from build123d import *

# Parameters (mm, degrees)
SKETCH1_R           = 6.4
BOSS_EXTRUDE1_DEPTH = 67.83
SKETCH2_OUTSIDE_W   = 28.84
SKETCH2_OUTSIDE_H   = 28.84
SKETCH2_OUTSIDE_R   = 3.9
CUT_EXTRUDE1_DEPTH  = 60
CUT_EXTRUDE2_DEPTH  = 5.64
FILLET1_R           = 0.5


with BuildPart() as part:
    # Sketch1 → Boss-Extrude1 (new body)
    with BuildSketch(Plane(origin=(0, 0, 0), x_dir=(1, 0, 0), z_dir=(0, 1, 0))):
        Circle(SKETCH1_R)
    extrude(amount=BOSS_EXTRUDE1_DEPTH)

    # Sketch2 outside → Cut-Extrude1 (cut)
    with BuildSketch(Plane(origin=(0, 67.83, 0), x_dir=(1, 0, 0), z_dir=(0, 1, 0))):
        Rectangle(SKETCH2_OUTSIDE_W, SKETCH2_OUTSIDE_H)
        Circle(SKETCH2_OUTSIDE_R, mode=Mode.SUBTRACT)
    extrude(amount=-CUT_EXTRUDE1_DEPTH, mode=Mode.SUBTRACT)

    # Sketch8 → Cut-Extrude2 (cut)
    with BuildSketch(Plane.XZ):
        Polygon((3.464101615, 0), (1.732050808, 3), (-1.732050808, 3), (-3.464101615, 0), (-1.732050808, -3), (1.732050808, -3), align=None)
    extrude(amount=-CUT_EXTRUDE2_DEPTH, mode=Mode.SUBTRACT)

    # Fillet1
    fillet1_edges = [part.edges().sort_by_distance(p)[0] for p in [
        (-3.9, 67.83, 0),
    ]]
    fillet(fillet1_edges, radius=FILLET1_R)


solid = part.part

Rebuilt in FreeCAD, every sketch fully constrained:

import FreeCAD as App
import Part
import Sketcher

V = App.Vector
Q = App.Units.Quantity


def edges_at(feature, points):
    """Names of the edges that pass closest to the given points."""
    edges = feature.Shape.Edges
    near = lambda p: min(range(len(edges)), key=lambda i: edges[i].distToShape(Part.Vertex(*p))[0])
    return sorted({f"Edge{near(p) + 1}" for p in points})

doc = App.newDocument("Part")
params = doc.addObject("Spreadsheet::Sheet", "Params")
for row, (alias, value) in enumerate([
    ("sketch1_diameter", "12.8 mm"),
    ("pad1_length", "67.83 mm"),
    ("sketch2_diameter", "7.8 mm"),
    ("sketch2_width", "28.84 mm"),
    ("pocket1_length", "60 mm"),
    ("pocket2_length", "5.64 mm"),
    ("fillet_radius", "0.5 mm"),
], start=1):
    params.set(f"A{row}", alias)
    params.set(f"B{row}", "=" + value)
    params.setAlias(f"B{row}", alias)

body = doc.addObject("PartDesign::Body", "Body")

# Sketch on XZ plane
sketch1 = body.newObject("Sketcher::SketchObject", "Sketch")
sketch1.AttachmentSupport = (doc.getObject("XZ_Plane"), [""])
sketch1.MapMode = "FlatFace"
sketch1.addGeometry(Part.Circle(V(0, 0, 0), V(0, 0, 1), 6.4), False)
sketch1.addConstraint([
    Sketcher.Constraint("Coincident", 0, 3, -1, 1),
    Sketcher.Constraint("Diameter", 0, 12.8),
])
sketch1.setExpression("Constraints[1]", "Params.sketch1_diameter")
pad1 = body.newObject("PartDesign::Pad", "Pad")
pad1.Profile = sketch1
pad1.setExpression("Length", "Params.pad1_length")
pad1.Reversed = True

# Sketch on XZ plane
sketch2 = body.newObject("Sketcher::SketchObject", "Sketch001")
sketch2.AttachmentSupport = (doc.getObject("XZ_Plane"), [""])
sketch2.MapMode = "FlatFace"
sketch2.AttachmentOffset = App.Placement(V(0, 0, -67.83), App.Rotation())
sketch2.addGeometry([
    Part.LineSegment(V(-14.42, -14.42, 0), V(-14.42, 14.42, 0)),  # 0
    Part.LineSegment(V(-14.42, 14.42, 0), V(14.42, 14.42, 0)),  # 1
    Part.LineSegment(V(14.42, 14.42, 0), V(14.42, -14.42, 0)),  # 2
    Part.LineSegment(V(14.42, -14.42, 0), V(-14.42, -14.42, 0)),  # 3
    Part.Circle(V(0, 0, 0), V(0, 0, 1), 3.9),  # 4
], False)
sketch2.addConstraint([
    Sketcher.Constraint("Coincident", 0, 2, 1, 1),
    Sketcher.Constraint("Coincident", 1, 2, 2, 1),
    Sketcher.Constraint("Coincident", 2, 2, 3, 1),
    Sketcher.Constraint("Coincident", 3, 2, 0, 1),
    Sketcher.Constraint("Vertical", 0),
    Sketcher.Constraint("Horizontal", 1),
    Sketcher.Constraint("Vertical", 2),
    Sketcher.Constraint("Horizontal", 3),
    Sketcher.Constraint("Coincident", 4, 3, -1, 1),
    Sketcher.Constraint("Symmetric", 0, 2, 2, 2, -1, 1),
    Sketcher.Constraint("Equal", 3, 0),
    Sketcher.Constraint("Diameter", 4, 7.8),
    Sketcher.Constraint("DistanceX", 1, 1, 1, 2, 28.84),
])
sketch2.setExpression("Constraints[11]", "Params.sketch2_diameter")
sketch2.setExpression("Constraints[12]", "Params.sketch2_width")
pocket1 = body.newObject("PartDesign::Pocket", "Pocket")
pocket1.Profile = sketch2
pocket1.setExpression("Length", "Params.pocket1_length")
pocket1.Reversed = True

# Sketch on XZ plane
sketch3 = body.newObject("Sketcher::SketchObject", "Sketch002")
sketch3.AttachmentSupport = (doc.getObject("XZ_Plane"), [""])
sketch3.MapMode = "FlatFace"
sketch3.addGeometry([
    Part.LineSegment(V(3.464102, 0, 0), V(1.732051, 3, 0)),  # 0
    Part.LineSegment(V(1.732051, 3, 0), V(-1.732051, 3, 0)),  # 1
    Part.LineSegment(V(-1.732051, 3, 0), V(-3.464102, 0, 0)),  # 2
    Part.LineSegment(V(-3.464102, 0, 0), V(-1.732051, -3, 0)),  # 3
    Part.LineSegment(V(-1.732051, -3, 0), V(1.732051, -3, 0)),  # 4
    Part.LineSegment(V(1.732051, -3, 0), V(3.464102, 0, 0)),  # 5
], False)
sketch3.addConstraint([
    Sketcher.Constraint("Coincident", 0, 2, 1, 1),
    Sketcher.Constraint("Coincident", 1, 2, 2, 1),
    Sketcher.Constraint("Coincident", 2, 2, 3, 1),
    Sketcher.Constraint("Coincident", 3, 2, 4, 1),
    Sketcher.Constraint("Coincident", 4, 2, 5, 1),
    Sketcher.Constraint("Coincident", 5, 2, 0, 1),
    Sketcher.Constraint("Horizontal", 1),
    Sketcher.Constraint("Horizontal", 4),
    Sketcher.Constraint("Symmetric", 0, 2, 3, 2, -1, 1),
    Sketcher.Constraint("Symmetric", 2, 2, 5, 2, -1, 1),
    Sketcher.Constraint("PointOnObject", 2, 2, -1),
    Sketcher.Constraint("Parallel", 2, 5),
    Sketcher.Constraint("Vertical", 1, 2, 3, 2),
    Sketcher.Constraint("Angle", 0, Q("120 deg")),
    Sketcher.Constraint("DistanceY", -1, 1, 0, 2, 3.0),
    Sketcher.Constraint("DistanceX", 1, 2, 1, 1, 3.464102),
])
pocket2 = body.newObject("PartDesign::Pocket", "Pocket001")
pocket2.Profile = sketch3
pocket2.setExpression("Length", "Params.pocket2_length")
doc.recompute()

fillet = body.newObject("PartDesign::Fillet", "Fillet")
fillet.Base = (pocket2, edges_at(pocket2, [(-3.9, 67.83, 0)]))
fillet.setExpression("Radius", "Params.fillet_radius")

doc.recompute()
